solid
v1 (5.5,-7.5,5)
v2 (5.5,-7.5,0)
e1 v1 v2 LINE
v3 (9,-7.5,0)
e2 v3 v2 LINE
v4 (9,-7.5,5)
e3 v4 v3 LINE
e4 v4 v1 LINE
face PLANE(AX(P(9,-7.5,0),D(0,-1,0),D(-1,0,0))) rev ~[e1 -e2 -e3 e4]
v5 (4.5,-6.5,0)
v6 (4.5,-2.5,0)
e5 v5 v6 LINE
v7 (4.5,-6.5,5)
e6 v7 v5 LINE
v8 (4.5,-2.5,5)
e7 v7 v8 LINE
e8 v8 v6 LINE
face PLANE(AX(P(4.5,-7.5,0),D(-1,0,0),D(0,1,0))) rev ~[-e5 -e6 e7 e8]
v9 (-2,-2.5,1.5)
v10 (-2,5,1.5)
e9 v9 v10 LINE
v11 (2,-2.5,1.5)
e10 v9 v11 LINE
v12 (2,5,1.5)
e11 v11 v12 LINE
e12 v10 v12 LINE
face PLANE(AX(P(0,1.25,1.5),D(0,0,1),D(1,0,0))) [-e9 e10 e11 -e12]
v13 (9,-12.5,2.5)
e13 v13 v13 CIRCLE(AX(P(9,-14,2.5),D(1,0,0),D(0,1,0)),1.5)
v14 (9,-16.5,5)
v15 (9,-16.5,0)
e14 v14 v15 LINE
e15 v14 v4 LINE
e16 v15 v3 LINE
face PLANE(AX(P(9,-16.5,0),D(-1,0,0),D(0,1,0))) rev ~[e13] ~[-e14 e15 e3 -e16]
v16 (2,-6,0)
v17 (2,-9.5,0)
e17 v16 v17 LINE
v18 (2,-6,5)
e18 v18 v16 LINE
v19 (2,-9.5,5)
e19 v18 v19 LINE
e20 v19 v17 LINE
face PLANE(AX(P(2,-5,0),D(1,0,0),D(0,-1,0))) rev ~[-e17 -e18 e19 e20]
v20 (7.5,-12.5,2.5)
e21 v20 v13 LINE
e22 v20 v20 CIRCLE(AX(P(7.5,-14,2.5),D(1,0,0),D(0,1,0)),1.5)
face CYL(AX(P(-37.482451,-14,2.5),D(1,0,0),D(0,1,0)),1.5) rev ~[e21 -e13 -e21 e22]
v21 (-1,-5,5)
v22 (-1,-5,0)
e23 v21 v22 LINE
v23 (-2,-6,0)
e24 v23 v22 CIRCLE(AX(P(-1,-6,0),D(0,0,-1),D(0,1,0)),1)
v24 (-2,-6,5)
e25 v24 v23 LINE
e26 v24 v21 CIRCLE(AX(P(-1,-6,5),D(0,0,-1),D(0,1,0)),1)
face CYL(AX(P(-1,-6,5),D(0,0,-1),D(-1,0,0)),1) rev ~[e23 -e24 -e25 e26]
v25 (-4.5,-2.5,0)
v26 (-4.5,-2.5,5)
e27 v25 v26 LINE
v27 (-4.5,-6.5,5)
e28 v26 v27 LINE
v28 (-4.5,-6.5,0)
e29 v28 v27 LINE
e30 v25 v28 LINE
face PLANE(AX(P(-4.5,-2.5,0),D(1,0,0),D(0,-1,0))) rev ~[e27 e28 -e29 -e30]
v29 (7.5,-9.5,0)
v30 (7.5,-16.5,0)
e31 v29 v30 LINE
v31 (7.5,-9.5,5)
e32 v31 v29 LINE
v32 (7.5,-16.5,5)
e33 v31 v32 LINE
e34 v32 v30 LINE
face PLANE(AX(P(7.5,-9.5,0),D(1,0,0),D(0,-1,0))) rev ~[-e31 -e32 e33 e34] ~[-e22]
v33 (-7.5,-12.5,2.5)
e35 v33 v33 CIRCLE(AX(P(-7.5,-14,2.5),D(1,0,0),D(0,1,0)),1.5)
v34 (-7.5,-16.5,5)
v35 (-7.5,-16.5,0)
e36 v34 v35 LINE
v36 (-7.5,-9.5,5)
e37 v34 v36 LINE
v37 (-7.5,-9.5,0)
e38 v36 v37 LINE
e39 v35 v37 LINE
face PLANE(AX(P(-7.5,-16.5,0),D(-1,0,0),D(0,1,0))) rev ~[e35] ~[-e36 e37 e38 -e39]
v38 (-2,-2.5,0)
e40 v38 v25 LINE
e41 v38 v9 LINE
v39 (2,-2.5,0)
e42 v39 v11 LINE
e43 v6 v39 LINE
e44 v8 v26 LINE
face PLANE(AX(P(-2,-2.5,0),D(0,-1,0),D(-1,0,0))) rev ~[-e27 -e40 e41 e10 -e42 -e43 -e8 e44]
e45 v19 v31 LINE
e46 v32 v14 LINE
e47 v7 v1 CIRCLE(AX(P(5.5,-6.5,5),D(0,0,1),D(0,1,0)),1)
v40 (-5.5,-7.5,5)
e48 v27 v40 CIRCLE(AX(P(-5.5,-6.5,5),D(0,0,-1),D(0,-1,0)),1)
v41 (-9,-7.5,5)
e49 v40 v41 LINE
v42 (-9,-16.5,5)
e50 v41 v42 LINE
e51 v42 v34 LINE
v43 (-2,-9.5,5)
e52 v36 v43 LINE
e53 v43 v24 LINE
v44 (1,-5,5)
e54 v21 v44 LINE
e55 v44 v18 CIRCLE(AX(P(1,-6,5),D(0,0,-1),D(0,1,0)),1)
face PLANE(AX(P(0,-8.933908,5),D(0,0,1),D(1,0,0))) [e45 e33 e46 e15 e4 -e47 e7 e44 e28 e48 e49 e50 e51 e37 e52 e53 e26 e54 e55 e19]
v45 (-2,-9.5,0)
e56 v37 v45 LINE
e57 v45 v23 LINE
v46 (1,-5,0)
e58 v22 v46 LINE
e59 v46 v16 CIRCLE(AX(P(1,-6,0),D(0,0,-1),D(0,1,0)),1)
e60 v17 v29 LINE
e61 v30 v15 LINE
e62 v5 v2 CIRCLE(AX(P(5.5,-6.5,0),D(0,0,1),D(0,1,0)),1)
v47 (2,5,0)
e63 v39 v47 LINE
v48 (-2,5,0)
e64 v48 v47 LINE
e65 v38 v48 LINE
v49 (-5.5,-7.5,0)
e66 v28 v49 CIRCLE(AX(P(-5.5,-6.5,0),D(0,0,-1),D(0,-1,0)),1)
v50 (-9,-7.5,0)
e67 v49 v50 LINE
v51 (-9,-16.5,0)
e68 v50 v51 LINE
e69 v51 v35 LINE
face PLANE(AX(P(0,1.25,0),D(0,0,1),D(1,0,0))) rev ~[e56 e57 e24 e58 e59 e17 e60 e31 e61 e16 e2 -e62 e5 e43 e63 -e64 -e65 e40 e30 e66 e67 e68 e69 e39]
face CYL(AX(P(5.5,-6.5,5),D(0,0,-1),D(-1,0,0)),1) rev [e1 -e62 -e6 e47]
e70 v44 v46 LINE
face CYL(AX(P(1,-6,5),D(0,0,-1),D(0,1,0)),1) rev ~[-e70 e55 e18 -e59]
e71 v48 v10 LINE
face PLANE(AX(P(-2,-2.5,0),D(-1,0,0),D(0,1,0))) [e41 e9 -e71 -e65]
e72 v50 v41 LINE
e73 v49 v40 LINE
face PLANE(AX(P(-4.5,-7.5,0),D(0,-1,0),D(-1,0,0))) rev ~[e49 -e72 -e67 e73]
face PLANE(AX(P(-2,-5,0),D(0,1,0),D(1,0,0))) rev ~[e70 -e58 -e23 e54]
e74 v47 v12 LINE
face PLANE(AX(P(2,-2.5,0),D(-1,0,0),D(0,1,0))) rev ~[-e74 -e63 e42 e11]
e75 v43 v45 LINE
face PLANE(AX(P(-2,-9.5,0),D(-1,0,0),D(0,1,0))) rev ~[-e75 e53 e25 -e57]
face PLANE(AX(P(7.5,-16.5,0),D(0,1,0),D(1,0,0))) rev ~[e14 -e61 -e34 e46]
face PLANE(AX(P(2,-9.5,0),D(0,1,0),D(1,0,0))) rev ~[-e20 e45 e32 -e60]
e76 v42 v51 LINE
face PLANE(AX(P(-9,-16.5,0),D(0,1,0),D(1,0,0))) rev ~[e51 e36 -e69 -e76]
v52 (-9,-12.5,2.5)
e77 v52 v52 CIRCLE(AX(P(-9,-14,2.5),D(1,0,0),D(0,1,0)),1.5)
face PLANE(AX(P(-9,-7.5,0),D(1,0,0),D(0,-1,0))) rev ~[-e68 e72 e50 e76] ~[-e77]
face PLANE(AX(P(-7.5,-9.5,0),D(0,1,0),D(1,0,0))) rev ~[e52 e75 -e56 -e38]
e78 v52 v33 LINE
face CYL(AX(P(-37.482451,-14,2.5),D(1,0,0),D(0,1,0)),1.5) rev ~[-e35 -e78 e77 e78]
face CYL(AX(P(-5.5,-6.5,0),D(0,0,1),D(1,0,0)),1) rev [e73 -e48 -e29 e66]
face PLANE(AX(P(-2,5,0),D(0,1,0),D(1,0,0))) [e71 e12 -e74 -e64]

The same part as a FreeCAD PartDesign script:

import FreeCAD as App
import Part
import Sketcher
from FreeCAD import Vector
Q = App.Units.Quantity


def edges_at(feature, points):
    """Names of the edges that pass closest to the given points."""
    edges = feature.Shape.Edges
    near = lambda p: min(range(len(edges)), key=lambda i: edges[i].distToShape(Part.Vertex(*p))[0])
    return sorted({f"Edge{near(p) + 1}" for p in points})


def add_polygon(sketch, points):
    """Adds a closed chain of lines whose ends are joined by coincident constraints."""
    first, n = sketch.GeometryCount, len(points)
    for a, b in zip(points, points[1:] + points[:1]):
        sketch.addGeometry(Part.LineSegment(App.Vector(*a, 0), App.Vector(*b, 0)), False)
    for i in range(n):
        sketch.addConstraint(Sketcher.Constraint("Coincident", first + i, 2, first + (i + 1) % n, 1))

doc = App.newDocument("Part")
body = doc.addObject("PartDesign::Body", "Body")

sketch1 = doc.addObject("Sketcher::SketchObject", "Sketch")
body.addObject(sketch1)
sketch1.AttachmentSupport = (doc.XY_Plane, [""])
sketch1.MapMode = "FlatFace"
add_polygon(sketch1, [(-2, 5), (-2, -2.5), (-4.5, -2.5), (-4.5, -7.5), (-9, -7.5), (-9, -16.5), (-7.5, -16.5), (-7.5, -9.5), (-2, -9.5), (-2, -5), (2, -5), (2, -9.5), (7.5, -9.5), (7.5, -16.5), (9, -16.5), (9, -7.5), (4.5, -7.5), (4.5, -2.5), (2, -2.5), (2, 5)])
sketch1.addConstraint(Sketcher.Constraint("Vertical", 0))
sketch1.addConstraint(Sketcher.Constraint("Horizontal", 1))
sketch1.addConstraint(Sketcher.Constraint("Vertical", 2))
sketch1.addConstraint(Sketcher.Constraint("Horizontal", 3))
sketch1.addConstraint(Sketcher.Constraint("Vertical", 4))
sketch1.addConstraint(Sketcher.Constraint("Horizontal", 5))
sketch1.addConstraint(Sketcher.Constraint("Vertical", 6))
sketch1.addConstraint(Sketcher.Constraint("Horizontal", 7))
sketch1.addConstraint(Sketcher.Constraint("Vertical", 8))
sketch1.addConstraint(Sketcher.Constraint("Horizontal", 9))
sketch1.addConstraint(Sketcher.Constraint("Vertical", 10))
sketch1.addConstraint(Sketcher.Constraint("Horizontal", 11))
sketch1.addConstraint(Sketcher.Constraint("Vertical", 12))
sketch1.addConstraint(Sketcher.Constraint("Horizontal", 13))
sketch1.addConstraint(Sketcher.Constraint("Vertical", 14))
sketch1.addConstraint(Sketcher.Constraint("Horizontal", 15))
sketch1.addConstraint(Sketcher.Constraint("Vertical", 16))
sketch1.addConstraint(Sketcher.Constraint("Horizontal", 17))
sketch1.addConstraint(Sketcher.Constraint("Vertical", 18))
sketch1.addConstraint(Sketcher.Constraint("Horizontal", 19))
sketch1.addConstraint(Sketcher.Constraint("Symmetric", 8, 2, 18, 2, -1, 1))
sketch1.addConstraint(Sketcher.Constraint("Symmetric", 7, 2, 10, 2, -2))
sketch1.addConstraint(Sketcher.Constraint("Symmetric", 5, 2, 12, 2, -2))
sketch1.addConstraint(Sketcher.Constraint("Symmetric", 3, 2, 14, 2, -2))
sketch1.addConstraint(Sketcher.Constraint("Symmetric", 1, 2, 16, 2, -2))
sketch1.addConstraint(Sketcher.Constraint("Vertical", 0, 2, 7, 2))
sketch1.addConstraint(Sketcher.Constraint("Equal", 15, 8))
sketch1.addConstraint(Sketcher.Constraint("DistanceX", 9, 1, 9, 2, Q("4 mm")))
sketch1.addConstraint(Sketcher.Constraint("DistanceY", 2, 2, 2, 1, Q("5 mm")))
sketch1.addConstraint(Sketcher.Constraint("DistanceY", 4, 2, 4, 1, Q("9 mm")))
sketch1.addConstraint(Sketcher.Constraint("DistanceY", 6, 1, 6, 2, Q("7 mm")))
sketch1.addConstraint(Sketcher.Constraint("DistanceX", 1, 2, 1, 1, Q("2.5 mm")))
sketch1.addConstraint(Sketcher.Constraint("DistanceX", 3, 2, 3, 1, Q("4.5 mm")))
sketch1.addConstraint(Sketcher.Constraint("DistanceX", 5, 1, 5, 2, Q("1.5 mm")))
sketch1.addConstraint(Sketcher.Constraint("DistanceY", 0, 2, 0, 1, Q("7.5 mm")))
pad1 = doc.addObject("PartDesign::Pad", "Pad")
body.addObject(pad1)
pad1.Profile = sketch1
pad1.Length = 1.5

sketch2 = doc.addObject("Sketcher::SketchObject", "Sketch001")
body.addObject(sketch2)
sketch2.AttachmentSupport = (doc.XY_Plane, [""])
sketch2.MapMode = "FlatFace"
add_polygon(sketch2, [(4.5, -2.5), (-4.5, -2.5), (-4.5, -7.5), (-9, -7.5), (-9, -16.5), (-7.5, -16.5), (-7.5, -9.5), (-2, -9.5), (-2, -5), (2, -5), (2, -9.5), (7.5, -9.5), (7.5, -16.5), (9, -16.5), (9, -7.5), (4.5, -7.5)])
sketch2.addConstraint(Sketcher.Constraint("Horizontal", 0))
sketch2.addConstraint(Sketcher.Constraint("Vertical", 1))
sketch2.addConstraint(Sketcher.Constraint("Horizontal", 2))
sketch2.addConstraint(Sketcher.Constraint("Vertical", 3))
sketch2.addConstraint(Sketcher.Constraint("Horizontal", 4))
sketch2.addConstraint(Sketcher.Constraint("Vertical", 5))
sketch2.addConstraint(Sketcher.Constraint("Horizontal", 6))
sketch2.addConstraint(Sketcher.Constraint("Vertical", 7))
sketch2.addConstraint(Sketcher.Constraint("Horizontal", 8))
sketch2.addConstraint(Sketcher.Constraint("Vertical", 9))
sketch2.addConstraint(Sketcher.Constraint("Horizontal", 10))
sketch2.addConstraint(Sketcher.Constraint("Vertical", 11))
sketch2.addConstraint(Sketcher.Constraint("Horizontal", 12))
sketch2.addConstraint(Sketcher.Constraint("Vertical", 13))
sketch2.addConstraint(Sketcher.Constraint("Horizontal", 14))
sketch2.addConstraint(Sketcher.Constraint("Vertical", 15))
sketch2.addConstraint(Sketcher.Constraint("Symmetric", 6, 2, 9, 2, -2))
sketch2.addConstraint(Sketcher.Constraint("Symmetric", 4, 2, 11, 2, -2))
sketch2.addConstraint(Sketcher.Constraint("Symmetric", 2, 2, 13, 2, -2))
sketch2.addConstraint(Sketcher.Constraint("Equal", 2, 14))
sketch2.addConstraint(Sketcher.Constraint("Equal", 0, 3))
sketch2.addConstraint(Sketcher.Constraint("Equal", 14, 7))
sketch2.addConstraint(Sketcher.Constraint("DistanceX", 0, 2, 0, 1, Q("9 mm")))
sketch2.addConstraint(Sketcher.Constraint("DistanceX", 8, 1, 8, 2, Q("4 mm")))
sketch2.addConstraint(Sketcher.Constraint("DistanceY", 1, 2, 1, 1, Q("5 mm")))
sketch2.addConstraint(Sketcher.Constraint("DistanceY", 5, 1, 5, 2, Q("7 mm")))
sketch2.addConstraint(Sketcher.Constraint("DistanceX", 2, 2, 2, 1, Q("4.5 mm")))
sketch2.addConstraint(Sketcher.Constraint("DistanceX", 4, 1, 4, 2, Q("1.5 mm")))
sketch2.addConstraint(Sketcher.Constraint("DistanceY", 7, 2, -1, 1, Q("5 mm")))
pad2 = doc.addObject("PartDesign::Pad", "Pad001")
body.addObject(pad2)
pad2.Profile = sketch2
pad2.Length = 5

sketch3 = doc.addObject("Sketcher::SketchObject", "Sketch002")
body.addObject(sketch3)
sketch3.AttachmentSupport = (doc.YZ_Plane, [""])
sketch3.MapMode = "FlatFace"
sketch3.AttachmentOffset = App.Placement(Vector(0, 0, -9), App.Rotation())
sketch3.addGeometry(Part.Circle(Vector(-14, 2.5, 0), Vector(0, 0, 1), 1.5), False)
sketch3.addConstraint(Sketcher.Constraint("Diameter", 0, Q("3 mm")))
sketch3.addConstraint(Sketcher.Constraint("DistanceX", 0, 3, -1, 1, Q("14 mm")))
sketch3.addConstraint(Sketcher.Constraint("DistanceY", -1, 1, 0, 3, Q("2.5 mm")))
doc.recompute()
hole = doc.addObject("PartDesign::Hole", "Hole")
body.addObject(hole)
hole.Profile = sketch3
hole.ThreadType = "None"
hole.Diameter = 3
hole.DepthType = "ThroughAll"
hole.Reversed = True
doc.recompute()

fillet = doc.addObject("PartDesign::Fillet", "Fillet")
body.addObject(fillet)
fillet.Base = (hole, edges_at(hole, [
    (2, -5, 2.5),
    (-2, -5, 2.5),
    (-4.5, -7.5, 2.5),
    (4.5, -7.5, 2.5),
]))
fillet.Radius = 1

doc.recompute()
